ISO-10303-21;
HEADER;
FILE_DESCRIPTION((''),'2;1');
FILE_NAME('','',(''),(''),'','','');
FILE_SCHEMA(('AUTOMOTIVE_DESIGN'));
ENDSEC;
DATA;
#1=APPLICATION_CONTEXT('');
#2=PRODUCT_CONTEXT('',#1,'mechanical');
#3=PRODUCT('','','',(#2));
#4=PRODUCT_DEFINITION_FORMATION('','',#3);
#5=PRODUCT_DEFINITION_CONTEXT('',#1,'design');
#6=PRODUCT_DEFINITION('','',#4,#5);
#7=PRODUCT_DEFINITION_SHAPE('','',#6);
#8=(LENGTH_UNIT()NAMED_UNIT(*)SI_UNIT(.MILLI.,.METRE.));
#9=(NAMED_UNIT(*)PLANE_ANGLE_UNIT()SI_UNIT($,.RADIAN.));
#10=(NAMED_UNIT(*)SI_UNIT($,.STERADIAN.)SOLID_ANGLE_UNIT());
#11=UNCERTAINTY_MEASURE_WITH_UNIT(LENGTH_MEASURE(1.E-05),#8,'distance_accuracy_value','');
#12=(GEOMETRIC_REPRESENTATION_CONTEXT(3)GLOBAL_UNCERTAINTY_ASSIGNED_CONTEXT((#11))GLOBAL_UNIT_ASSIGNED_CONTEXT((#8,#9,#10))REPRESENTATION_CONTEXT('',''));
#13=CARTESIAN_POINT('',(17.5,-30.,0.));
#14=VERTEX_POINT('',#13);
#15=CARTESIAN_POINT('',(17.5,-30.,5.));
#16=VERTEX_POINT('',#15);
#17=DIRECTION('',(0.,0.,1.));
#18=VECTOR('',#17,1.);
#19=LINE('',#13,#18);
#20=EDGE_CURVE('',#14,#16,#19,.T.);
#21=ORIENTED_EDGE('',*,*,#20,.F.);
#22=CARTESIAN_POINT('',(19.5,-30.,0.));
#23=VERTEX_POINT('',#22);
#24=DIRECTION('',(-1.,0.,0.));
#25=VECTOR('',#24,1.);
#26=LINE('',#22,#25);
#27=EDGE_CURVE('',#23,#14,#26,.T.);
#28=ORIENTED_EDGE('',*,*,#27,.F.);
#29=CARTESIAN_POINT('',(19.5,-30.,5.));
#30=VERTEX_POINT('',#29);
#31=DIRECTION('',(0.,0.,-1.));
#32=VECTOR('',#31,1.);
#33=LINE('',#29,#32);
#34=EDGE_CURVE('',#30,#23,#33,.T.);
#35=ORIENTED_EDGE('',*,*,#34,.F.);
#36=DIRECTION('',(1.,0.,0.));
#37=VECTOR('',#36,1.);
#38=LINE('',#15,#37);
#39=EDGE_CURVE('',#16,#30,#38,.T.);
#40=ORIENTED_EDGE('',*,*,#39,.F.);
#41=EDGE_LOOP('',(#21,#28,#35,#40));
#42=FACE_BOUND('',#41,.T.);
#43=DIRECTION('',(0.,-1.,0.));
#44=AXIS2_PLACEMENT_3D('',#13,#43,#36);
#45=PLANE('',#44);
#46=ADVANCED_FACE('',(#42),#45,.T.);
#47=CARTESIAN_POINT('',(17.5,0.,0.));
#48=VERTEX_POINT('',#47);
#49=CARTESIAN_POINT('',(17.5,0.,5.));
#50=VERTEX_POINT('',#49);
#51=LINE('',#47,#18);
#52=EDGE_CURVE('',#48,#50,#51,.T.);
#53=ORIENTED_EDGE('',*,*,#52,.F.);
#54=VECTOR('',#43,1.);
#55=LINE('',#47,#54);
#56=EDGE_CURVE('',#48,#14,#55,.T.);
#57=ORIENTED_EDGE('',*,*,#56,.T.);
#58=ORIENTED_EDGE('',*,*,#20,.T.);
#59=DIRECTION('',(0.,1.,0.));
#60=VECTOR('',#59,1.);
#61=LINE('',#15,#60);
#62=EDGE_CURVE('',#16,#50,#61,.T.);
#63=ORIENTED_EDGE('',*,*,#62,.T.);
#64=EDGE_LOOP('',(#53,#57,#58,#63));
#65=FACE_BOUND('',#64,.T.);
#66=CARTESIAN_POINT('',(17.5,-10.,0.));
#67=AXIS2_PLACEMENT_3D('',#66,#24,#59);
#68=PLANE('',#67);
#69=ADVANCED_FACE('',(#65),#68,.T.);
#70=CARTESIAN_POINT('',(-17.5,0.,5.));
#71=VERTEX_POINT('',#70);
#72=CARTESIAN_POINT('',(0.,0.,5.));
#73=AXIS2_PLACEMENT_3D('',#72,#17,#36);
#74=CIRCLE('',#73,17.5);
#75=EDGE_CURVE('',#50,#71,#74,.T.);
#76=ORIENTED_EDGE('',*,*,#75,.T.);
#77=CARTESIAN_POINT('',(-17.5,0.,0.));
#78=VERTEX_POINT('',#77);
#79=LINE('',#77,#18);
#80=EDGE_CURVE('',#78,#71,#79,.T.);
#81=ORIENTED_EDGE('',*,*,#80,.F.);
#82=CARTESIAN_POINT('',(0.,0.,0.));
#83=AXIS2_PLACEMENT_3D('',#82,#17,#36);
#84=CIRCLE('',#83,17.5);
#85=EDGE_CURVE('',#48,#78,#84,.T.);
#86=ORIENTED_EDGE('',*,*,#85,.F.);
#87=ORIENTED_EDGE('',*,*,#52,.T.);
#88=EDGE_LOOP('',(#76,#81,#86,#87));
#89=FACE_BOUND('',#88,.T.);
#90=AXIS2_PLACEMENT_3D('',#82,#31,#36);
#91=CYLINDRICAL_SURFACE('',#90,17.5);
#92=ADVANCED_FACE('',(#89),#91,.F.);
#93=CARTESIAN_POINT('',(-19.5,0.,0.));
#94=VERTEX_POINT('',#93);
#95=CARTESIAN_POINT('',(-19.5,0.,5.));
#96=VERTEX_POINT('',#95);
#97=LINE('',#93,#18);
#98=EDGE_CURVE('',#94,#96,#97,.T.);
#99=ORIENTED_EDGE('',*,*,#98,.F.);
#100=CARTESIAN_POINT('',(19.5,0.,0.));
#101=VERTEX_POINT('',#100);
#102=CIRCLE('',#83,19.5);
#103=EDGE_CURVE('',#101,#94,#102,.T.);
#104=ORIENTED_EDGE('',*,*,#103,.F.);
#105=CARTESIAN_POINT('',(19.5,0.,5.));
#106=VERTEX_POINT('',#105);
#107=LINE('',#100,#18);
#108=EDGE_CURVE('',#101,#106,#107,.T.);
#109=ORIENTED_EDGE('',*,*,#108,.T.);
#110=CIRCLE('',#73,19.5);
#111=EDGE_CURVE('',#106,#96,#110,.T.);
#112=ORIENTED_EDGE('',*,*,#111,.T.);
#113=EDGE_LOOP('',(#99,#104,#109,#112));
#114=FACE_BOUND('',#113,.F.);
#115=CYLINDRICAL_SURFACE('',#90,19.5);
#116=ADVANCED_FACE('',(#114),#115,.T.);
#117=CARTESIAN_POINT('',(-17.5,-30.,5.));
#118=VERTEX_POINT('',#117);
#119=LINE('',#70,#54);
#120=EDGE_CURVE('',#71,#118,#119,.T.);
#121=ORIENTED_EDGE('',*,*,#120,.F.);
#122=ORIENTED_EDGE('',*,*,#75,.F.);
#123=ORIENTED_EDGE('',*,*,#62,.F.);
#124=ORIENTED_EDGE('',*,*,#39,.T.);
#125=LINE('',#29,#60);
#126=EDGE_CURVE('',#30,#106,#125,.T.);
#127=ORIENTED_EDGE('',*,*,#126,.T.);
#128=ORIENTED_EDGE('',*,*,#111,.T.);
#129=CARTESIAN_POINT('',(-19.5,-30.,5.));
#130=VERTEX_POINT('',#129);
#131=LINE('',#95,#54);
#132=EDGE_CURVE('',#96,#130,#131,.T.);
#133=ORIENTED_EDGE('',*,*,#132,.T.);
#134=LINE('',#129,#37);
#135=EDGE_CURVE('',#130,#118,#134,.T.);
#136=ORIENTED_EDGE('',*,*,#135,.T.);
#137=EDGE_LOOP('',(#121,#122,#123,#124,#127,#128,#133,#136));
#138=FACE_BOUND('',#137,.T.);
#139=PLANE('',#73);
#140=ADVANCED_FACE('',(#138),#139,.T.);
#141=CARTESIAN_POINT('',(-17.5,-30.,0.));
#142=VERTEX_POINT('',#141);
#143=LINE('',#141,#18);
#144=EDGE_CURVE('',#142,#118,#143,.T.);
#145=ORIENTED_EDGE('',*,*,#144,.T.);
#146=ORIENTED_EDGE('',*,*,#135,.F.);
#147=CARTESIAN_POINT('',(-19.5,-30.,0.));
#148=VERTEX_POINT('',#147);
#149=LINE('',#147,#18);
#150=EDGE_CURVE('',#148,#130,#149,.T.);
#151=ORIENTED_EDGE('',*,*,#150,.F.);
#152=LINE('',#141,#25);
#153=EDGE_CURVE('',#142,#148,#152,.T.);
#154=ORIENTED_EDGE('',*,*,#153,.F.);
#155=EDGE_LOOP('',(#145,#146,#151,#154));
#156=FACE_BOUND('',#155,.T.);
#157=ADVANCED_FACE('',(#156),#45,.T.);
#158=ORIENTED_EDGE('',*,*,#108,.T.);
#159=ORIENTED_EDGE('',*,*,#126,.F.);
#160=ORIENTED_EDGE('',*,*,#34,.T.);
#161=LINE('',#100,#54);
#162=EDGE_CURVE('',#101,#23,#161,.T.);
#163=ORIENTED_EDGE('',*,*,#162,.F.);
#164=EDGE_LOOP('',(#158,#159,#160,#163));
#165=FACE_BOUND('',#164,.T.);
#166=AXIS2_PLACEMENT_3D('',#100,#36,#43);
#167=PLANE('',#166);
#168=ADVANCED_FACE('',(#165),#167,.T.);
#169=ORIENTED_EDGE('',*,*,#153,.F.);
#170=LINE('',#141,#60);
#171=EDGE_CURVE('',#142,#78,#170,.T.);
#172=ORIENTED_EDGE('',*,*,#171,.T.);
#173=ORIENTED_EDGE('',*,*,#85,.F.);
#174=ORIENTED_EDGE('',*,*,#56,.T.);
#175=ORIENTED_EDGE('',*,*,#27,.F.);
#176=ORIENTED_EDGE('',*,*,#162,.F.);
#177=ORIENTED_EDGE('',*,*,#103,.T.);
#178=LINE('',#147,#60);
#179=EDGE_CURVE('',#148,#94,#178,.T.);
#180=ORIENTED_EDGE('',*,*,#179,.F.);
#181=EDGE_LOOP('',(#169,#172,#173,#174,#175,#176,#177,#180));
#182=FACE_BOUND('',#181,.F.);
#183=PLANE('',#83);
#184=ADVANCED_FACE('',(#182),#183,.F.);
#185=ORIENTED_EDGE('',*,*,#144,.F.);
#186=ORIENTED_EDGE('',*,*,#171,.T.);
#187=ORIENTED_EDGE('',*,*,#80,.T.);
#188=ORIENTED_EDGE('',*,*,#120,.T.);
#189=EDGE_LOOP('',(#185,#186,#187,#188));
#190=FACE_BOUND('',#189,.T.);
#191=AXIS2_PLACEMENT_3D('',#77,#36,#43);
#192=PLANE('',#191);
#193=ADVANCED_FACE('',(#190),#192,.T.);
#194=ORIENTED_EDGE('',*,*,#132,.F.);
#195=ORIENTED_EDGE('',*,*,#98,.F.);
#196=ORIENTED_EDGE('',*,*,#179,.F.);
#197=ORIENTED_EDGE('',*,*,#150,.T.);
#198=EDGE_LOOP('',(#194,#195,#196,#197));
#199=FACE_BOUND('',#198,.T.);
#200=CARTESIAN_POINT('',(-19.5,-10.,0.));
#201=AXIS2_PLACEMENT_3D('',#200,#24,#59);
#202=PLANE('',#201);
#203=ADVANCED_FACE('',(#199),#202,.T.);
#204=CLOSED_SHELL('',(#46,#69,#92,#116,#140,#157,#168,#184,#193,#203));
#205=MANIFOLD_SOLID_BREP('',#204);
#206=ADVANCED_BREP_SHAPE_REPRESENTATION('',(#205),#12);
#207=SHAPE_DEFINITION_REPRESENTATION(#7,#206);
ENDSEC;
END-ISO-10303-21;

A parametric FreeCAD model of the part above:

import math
import FreeCAD as App
import Part
import Sketcher
Q = App.Units.Quantity


def add_polygon(sketch, points):
    """Adds a closed chain of lines whose ends are joined by coincident constraints."""
    first, n = sketch.GeometryCount, len(points)
    for a, b in zip(points, points[1:] + points[:1]):
        sketch.addGeometry(Part.LineSegment(App.Vector(*a, 0), App.Vector(*b, 0)), False)
    for i in range(n):
        sketch.addConstraint(Sketcher.Constraint("Coincident", first + i, 2, first + (i + 1) % n, 1))

doc = App.newDocument("Part")
body = doc.addObject("PartDesign::Body", "Body")

sketch1 = body.newObject("Sketcher::SketchObject", "Sketch")
sketch1.AttachmentSupport = (doc.getObject("XY_Plane"), [""])
sketch1.MapMode = "FlatFace"
sketch1.addGeometry([
    Part.ArcOfCircle(Part.Circle(App.Vector(0, 0, 0), App.Vector(0, 0, 1), 17.5), math.radians(0), math.radians(180)),
    Part.LineSegment(App.Vector(17.5, 0, 0), App.Vector(17.5, -10, 0)),
    Part.LineSegment(App.Vector(17.5, -10, 0), App.Vector(19.5, -10, 0)),
    Part.LineSegment(App.Vector(19.5, -10, 0), App.Vector(19.5, 0, 0)),
    Part.ArcOfCircle(Part.Circle(App.Vector(0, 0, 0), App.Vector(0, 0, 1), 19.5), math.radians(0), math.radians(180)),
    Part.LineSegment(App.Vector(-19.5, 0, 0), App.Vector(-19.5, -10, 0)),
    Part.LineSegment(App.Vector(-19.5, -10, 0), App.Vector(-17.5, -10, 0)),
    Part.LineSegment(App.Vector(-17.5, -10, 0), App.Vector(-17.5, 0, 0)),
], False)
sketch1.addConstraint([
    Sketcher.Constraint("Tangent", 0, 1, 1, 1),
    Sketcher.Constraint("Coincident", 1, 2, 2, 1),
    Sketcher.Constraint("Coincident", 2, 2, 3, 1),
    Sketcher.Constraint("Tangent", 3, 2, 4, 1),
    Sketcher.Constraint("Tangent", 4, 2, 5, 1),
    Sketcher.Constraint("Coincident", 5, 2, 6, 1),
    Sketcher.Constraint("Coincident", 6, 2, 7, 1),
    Sketcher.Constraint("Tangent", 7, 2, 0, 2),
    Sketcher.Constraint("Vertical", 1),
    Sketcher.Constraint("Horizontal", 2),
    Sketcher.Constraint("Vertical", 3),
    Sketcher.Constraint("Vertical", 5),
    Sketcher.Constraint("Horizontal", 6),
    Sketcher.Constraint("Vertical", 7),
    Sketcher.Constraint("Coincident", 0, 3, -1, 1),
    Sketcher.Constraint("Coincident", 4, 3, -1, 1),
    Sketcher.Constraint("Horizontal", 2, 2, 5, 2),
    Sketcher.Constraint("Radius", 0, Q("17.5 mm")),
    Sketcher.Constraint("Radius", 4, Q("19.5 mm")),
    Sketcher.Constraint("DistanceY", 1, 2, 1, 1, Q("10 mm")),
])
pad1 = body.newObject("PartDesign::Pad", "Pad")
pad1.Profile = sketch1
pad1.Length = 5

sketch2 = body.newObject("Sketcher::SketchObject", "Sketch001")
sketch2.AttachmentSupport = (doc.getObject("XZ_Plane"), [""])
sketch2.MapMode = "FlatFace"
sketch2.AttachmentOffset = App.Placement(App.Vector(0, 0, 10), App.Rotation())
add_polygon(sketch2, [(-19.5, 0), (-17.5, 0), (-17.5, 5), (-19.5, 5)])
add_polygon(sketch2, [(17.5, 0), (19.5, 0), (19.5, 5), (17.5, 5)])
sketch2.addConstraint([
    Sketcher.Constraint("Horizontal", 0),
    Sketcher.Constraint("Vertical", 1),
    Sketcher.Constraint("Horizontal", 2),
    Sketcher.Constraint("Vertical", 3),
    Sketcher.Constraint("Horizontal", 4),
    Sketcher.Constraint("Vertical", 5),
    Sketcher.Constraint("Horizontal", 6),
    Sketcher.Constraint("Vertical", 7),
    Sketcher.Constraint("Symmetric", 3, 2, 4, 2, -1, 1),
    Sketcher.Constraint("Symmetric", 1, 2, 6, 2, -2),
    Sketcher.Constraint("PointOnObject", 0, 2, -1),
    Sketcher.Constraint("DistanceX", 0, 1, 0, 2, Q("2 mm")),
    Sketcher.Constraint("DistanceY", 1, 1, 1, 2, Q("5 mm")),
    Sketcher.Constraint("DistanceX", 0, 2, 4, 2, Q("37 mm")),
])
pad2 = body.newObject("PartDesign::Pad", "Pad001")
pad2.Profile = sketch2
pad2.Length = 20

doc.recompute()
